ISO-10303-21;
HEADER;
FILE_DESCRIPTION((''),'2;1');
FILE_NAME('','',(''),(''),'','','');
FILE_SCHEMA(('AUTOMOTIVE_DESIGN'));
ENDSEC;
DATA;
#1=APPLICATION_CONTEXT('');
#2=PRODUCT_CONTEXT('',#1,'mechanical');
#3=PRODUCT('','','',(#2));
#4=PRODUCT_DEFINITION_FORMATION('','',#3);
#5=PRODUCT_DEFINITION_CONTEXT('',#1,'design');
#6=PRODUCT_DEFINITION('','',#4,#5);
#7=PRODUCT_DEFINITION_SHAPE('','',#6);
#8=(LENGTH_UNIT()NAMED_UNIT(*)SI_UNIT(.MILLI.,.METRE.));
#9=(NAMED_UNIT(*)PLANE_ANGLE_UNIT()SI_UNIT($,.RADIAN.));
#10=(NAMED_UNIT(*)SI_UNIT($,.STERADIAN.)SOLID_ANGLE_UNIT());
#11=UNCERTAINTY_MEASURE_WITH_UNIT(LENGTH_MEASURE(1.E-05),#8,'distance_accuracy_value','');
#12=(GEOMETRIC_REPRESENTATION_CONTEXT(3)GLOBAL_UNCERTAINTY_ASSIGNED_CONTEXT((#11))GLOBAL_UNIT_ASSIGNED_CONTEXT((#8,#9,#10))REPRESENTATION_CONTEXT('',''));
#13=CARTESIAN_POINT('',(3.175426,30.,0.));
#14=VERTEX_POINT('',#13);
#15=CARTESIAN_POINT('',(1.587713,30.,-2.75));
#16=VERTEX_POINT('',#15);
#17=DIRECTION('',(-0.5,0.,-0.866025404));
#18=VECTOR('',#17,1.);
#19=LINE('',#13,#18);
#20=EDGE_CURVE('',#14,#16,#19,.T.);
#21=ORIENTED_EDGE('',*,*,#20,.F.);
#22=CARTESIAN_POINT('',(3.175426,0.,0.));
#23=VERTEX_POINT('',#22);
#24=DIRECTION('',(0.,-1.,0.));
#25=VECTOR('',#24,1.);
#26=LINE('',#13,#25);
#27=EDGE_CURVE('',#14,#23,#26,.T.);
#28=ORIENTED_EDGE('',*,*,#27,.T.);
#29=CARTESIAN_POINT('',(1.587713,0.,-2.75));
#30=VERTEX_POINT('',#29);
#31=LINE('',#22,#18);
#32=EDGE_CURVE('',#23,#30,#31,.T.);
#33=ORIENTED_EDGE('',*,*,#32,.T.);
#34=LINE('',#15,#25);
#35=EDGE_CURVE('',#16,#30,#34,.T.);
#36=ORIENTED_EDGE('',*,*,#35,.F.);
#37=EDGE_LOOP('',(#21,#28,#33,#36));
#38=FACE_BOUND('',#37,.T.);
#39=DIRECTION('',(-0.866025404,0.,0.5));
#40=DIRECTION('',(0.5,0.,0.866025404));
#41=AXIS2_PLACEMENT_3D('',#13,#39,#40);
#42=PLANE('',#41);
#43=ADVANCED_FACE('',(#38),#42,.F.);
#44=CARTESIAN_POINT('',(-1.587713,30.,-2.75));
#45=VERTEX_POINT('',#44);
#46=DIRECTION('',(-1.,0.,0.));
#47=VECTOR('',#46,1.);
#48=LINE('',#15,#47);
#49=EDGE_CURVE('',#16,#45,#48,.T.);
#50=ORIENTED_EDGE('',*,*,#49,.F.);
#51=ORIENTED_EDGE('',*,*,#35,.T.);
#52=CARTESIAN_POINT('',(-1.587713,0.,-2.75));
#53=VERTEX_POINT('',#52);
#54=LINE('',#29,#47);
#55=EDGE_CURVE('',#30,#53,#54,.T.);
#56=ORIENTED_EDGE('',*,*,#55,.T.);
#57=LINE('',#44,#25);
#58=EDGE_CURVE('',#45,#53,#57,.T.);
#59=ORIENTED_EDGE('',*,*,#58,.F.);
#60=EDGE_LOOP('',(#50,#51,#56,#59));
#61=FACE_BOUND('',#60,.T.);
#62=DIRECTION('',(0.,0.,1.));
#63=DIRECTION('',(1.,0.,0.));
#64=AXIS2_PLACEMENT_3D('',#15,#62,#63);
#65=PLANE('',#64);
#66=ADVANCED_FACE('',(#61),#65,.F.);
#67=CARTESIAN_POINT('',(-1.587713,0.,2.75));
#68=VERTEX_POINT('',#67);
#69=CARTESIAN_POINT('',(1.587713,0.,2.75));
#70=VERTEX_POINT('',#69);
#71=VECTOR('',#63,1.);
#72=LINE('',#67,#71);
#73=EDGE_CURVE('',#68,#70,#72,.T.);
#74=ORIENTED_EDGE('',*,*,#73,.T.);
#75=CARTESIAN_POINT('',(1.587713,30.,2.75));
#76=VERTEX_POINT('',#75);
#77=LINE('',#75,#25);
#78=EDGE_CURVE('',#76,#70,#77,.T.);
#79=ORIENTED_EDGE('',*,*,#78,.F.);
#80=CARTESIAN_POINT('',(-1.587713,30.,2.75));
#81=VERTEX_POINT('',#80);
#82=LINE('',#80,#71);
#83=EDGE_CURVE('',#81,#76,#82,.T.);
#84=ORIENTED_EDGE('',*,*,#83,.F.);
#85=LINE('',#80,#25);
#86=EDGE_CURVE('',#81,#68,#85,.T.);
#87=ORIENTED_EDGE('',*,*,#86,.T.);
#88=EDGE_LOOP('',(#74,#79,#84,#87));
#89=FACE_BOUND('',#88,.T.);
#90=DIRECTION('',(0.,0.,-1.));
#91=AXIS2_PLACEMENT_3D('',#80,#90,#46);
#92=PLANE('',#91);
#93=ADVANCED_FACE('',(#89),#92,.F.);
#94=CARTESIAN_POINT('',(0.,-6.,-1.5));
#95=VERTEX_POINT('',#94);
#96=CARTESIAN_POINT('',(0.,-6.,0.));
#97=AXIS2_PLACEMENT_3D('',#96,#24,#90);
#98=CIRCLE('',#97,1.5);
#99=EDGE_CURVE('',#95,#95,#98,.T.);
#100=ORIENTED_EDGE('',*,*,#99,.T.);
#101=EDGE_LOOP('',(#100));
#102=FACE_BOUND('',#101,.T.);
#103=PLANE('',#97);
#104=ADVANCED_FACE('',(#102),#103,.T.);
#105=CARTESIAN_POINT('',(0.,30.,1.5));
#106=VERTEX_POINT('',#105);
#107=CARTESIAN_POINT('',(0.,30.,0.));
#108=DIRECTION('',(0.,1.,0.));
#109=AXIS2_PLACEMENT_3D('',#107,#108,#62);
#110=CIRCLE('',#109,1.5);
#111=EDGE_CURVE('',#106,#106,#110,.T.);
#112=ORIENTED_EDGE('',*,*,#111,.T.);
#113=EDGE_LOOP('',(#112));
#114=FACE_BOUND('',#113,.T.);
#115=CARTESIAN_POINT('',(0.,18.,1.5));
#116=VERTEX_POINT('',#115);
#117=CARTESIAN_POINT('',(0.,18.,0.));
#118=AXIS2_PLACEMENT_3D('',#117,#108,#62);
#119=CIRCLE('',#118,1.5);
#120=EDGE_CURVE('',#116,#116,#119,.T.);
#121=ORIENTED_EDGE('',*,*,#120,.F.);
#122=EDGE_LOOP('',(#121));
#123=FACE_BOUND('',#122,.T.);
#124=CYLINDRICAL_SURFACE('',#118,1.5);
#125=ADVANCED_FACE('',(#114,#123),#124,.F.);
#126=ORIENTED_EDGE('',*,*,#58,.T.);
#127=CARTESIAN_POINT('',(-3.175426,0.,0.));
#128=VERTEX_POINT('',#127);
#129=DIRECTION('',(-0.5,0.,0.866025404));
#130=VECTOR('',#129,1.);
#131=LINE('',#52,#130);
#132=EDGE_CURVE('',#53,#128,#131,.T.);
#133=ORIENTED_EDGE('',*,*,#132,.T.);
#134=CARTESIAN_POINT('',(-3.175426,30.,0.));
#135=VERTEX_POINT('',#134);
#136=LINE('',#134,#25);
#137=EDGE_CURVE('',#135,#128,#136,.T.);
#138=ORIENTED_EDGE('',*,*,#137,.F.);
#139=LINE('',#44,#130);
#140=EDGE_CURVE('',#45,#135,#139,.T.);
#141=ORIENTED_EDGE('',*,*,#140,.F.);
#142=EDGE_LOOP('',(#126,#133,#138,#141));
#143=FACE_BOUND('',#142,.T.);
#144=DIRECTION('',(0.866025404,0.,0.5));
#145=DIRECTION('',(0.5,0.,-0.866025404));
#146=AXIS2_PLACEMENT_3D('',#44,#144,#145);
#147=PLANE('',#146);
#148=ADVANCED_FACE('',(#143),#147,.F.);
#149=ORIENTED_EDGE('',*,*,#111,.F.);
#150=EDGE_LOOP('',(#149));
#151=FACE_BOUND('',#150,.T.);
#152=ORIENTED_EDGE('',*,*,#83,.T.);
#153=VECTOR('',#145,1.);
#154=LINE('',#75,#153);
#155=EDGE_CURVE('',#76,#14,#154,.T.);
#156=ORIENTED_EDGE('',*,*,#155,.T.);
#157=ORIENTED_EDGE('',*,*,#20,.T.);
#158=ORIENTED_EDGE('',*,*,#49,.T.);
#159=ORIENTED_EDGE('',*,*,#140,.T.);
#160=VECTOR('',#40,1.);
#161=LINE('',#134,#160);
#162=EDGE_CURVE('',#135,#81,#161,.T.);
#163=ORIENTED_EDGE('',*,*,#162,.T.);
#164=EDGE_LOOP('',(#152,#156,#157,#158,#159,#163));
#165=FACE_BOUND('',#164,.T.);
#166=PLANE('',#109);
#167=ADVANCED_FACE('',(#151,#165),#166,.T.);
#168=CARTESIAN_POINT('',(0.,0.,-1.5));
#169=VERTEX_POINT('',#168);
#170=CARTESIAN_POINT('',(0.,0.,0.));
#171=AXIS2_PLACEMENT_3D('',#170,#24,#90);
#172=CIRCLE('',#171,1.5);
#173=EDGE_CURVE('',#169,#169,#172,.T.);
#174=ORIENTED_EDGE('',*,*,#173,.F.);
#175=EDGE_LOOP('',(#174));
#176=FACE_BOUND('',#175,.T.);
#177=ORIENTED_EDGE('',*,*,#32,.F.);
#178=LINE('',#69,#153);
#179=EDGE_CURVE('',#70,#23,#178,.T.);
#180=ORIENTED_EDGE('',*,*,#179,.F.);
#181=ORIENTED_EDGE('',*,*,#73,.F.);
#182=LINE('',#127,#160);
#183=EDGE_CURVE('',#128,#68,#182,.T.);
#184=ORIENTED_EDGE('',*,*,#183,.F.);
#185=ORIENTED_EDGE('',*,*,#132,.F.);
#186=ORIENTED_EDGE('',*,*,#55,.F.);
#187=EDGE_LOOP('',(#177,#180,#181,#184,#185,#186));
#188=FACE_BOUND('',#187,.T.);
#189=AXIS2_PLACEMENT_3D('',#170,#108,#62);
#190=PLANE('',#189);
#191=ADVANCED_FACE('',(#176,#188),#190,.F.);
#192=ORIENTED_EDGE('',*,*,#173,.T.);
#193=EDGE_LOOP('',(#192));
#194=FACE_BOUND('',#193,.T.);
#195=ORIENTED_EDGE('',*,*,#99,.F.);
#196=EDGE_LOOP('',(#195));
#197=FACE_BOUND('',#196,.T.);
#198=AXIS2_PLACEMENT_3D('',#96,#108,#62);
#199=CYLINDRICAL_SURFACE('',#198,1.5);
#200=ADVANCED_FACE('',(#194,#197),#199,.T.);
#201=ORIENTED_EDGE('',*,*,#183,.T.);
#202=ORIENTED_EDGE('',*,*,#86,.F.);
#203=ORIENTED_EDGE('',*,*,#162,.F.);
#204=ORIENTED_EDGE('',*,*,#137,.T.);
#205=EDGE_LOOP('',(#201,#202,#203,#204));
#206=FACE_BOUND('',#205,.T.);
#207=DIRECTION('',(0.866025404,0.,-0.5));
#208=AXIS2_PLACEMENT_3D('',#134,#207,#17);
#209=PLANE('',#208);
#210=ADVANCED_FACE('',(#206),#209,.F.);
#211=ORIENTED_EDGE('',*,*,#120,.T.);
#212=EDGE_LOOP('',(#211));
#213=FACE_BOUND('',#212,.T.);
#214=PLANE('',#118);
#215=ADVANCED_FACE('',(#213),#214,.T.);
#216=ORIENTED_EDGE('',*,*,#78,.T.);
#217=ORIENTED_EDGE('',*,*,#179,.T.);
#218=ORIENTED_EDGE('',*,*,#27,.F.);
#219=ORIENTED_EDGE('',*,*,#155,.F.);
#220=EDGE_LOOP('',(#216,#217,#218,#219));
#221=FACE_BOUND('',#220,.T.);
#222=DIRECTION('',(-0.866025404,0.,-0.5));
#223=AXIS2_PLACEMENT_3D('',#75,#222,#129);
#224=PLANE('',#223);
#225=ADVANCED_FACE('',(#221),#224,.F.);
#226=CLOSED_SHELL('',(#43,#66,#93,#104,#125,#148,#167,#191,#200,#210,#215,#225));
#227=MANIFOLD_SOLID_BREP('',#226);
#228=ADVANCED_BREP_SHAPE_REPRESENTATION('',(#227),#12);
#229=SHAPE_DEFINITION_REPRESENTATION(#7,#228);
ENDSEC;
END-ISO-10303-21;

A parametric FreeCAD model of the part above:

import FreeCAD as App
import Part
import Sketcher
from FreeCAD import Vector
Q = App.Units.Quantity


def add_polygon(sketch, points):
    """Adds a closed chain of lines whose ends are joined by coincident constraints."""
    first, n = sketch.GeometryCount, len(points)
    for a, b in zip(points, points[1:] + points[:1]):
        sketch.addGeometry(Part.LineSegment(App.Vector(*a, 0), App.Vector(*b, 0)), False)
    for i in range(n):
        sketch.addConstraint(Sketcher.Constraint("Coincident", first + i, 2, first + (i + 1) % n, 1))

doc = App.newDocument("Part")
body = doc.addObject("PartDesign::Body", "Body")

# Sketch on XZ plane
sketch1 = body.newObject("Sketcher::SketchObject", "Sketch")
sketch1.AttachmentSupport = (doc.getObject("XZ_Plane"), [""])
sketch1.MapMode = "FlatFace"
add_polygon(sketch1, [(3.2, 0), (1.6, -2.8), (-1.6, -2.8), (-3.2, 0), (-1.6, 2.8), (1.6, 2.8)])  # lines 0-5
sketch1.addConstraint([
    Sketcher.Constraint("Horizontal", 1),
    Sketcher.Constraint("Horizontal", 4),
    Sketcher.Constraint("Symmetric", 0, 2, 3, 2, -1, 1),
    Sketcher.Constraint("Symmetric", 2, 2, 5, 2, -1, 1),
    Sketcher.Constraint("PointOnObject", 2, 2, -1),
    Sketcher.Constraint("Parallel", 2, 5),
    Sketcher.Constraint("Vertical", 1, 2, 3, 2),
    Sketcher.Constraint("Angle", 0, Q("-120 deg")),
    Sketcher.Constraint("DistanceY", 1, 2, 3, 2, 5.5),
    Sketcher.Constraint("DistanceX", 1, 2, 1, 1, 3.175426),
])
pad1 = body.newObject("PartDesign::Pad", "Pad")
pad1.Profile = sketch1
pad1.Length = 30
pad1.Reversed = True

# Sketch on XZ plane
sketch2 = body.newObject("Sketcher::SketchObject", "Sketch001")
sketch2.AttachmentSupport = (doc.getObject("XZ_Plane"), [""])
sketch2.MapMode = "FlatFace"
sketch2.AttachmentOffset = App.Placement(Vector(0, 0, -30), App.Rotation())
sketch2.addGeometry(Part.Circle(Vector(0, 0, 0), Vector(0, 0, 1), 1.5), False)
sketch2.addConstraint([
    Sketcher.Constraint("Coincident", 0, 3, -1, 1),
    Sketcher.Constraint("Diameter", 0, 3.0),
])
pocket1 = body.newObject("PartDesign::Pocket", "Pocket")
pocket1.Profile = sketch2
pocket1.Length = 12
pocket1.Reversed = True

# Sketch on XZ plane
sketch3 = body.newObject("Sketcher::SketchObject", "Sketch002")
sketch3.AttachmentSupport = (doc.getObject("XZ_Plane"), [""])
sketch3.MapMode = "FlatFace"
sketch3.addGeometry(Part.Circle(Vector(0, 0, 0), Vector(0, 0, 1), 1.5), False)
sketch3.addConstraint([
    Sketcher.Constraint("Coincident", 0, 3, -1, 1),
    Sketcher.Constraint("Diameter", 0, 3.0),
])
pad2 = body.newObject("PartDesign::Pad", "Pad001")
pad2.Profile = sketch3
pad2.Length = 6

doc.recompute()
